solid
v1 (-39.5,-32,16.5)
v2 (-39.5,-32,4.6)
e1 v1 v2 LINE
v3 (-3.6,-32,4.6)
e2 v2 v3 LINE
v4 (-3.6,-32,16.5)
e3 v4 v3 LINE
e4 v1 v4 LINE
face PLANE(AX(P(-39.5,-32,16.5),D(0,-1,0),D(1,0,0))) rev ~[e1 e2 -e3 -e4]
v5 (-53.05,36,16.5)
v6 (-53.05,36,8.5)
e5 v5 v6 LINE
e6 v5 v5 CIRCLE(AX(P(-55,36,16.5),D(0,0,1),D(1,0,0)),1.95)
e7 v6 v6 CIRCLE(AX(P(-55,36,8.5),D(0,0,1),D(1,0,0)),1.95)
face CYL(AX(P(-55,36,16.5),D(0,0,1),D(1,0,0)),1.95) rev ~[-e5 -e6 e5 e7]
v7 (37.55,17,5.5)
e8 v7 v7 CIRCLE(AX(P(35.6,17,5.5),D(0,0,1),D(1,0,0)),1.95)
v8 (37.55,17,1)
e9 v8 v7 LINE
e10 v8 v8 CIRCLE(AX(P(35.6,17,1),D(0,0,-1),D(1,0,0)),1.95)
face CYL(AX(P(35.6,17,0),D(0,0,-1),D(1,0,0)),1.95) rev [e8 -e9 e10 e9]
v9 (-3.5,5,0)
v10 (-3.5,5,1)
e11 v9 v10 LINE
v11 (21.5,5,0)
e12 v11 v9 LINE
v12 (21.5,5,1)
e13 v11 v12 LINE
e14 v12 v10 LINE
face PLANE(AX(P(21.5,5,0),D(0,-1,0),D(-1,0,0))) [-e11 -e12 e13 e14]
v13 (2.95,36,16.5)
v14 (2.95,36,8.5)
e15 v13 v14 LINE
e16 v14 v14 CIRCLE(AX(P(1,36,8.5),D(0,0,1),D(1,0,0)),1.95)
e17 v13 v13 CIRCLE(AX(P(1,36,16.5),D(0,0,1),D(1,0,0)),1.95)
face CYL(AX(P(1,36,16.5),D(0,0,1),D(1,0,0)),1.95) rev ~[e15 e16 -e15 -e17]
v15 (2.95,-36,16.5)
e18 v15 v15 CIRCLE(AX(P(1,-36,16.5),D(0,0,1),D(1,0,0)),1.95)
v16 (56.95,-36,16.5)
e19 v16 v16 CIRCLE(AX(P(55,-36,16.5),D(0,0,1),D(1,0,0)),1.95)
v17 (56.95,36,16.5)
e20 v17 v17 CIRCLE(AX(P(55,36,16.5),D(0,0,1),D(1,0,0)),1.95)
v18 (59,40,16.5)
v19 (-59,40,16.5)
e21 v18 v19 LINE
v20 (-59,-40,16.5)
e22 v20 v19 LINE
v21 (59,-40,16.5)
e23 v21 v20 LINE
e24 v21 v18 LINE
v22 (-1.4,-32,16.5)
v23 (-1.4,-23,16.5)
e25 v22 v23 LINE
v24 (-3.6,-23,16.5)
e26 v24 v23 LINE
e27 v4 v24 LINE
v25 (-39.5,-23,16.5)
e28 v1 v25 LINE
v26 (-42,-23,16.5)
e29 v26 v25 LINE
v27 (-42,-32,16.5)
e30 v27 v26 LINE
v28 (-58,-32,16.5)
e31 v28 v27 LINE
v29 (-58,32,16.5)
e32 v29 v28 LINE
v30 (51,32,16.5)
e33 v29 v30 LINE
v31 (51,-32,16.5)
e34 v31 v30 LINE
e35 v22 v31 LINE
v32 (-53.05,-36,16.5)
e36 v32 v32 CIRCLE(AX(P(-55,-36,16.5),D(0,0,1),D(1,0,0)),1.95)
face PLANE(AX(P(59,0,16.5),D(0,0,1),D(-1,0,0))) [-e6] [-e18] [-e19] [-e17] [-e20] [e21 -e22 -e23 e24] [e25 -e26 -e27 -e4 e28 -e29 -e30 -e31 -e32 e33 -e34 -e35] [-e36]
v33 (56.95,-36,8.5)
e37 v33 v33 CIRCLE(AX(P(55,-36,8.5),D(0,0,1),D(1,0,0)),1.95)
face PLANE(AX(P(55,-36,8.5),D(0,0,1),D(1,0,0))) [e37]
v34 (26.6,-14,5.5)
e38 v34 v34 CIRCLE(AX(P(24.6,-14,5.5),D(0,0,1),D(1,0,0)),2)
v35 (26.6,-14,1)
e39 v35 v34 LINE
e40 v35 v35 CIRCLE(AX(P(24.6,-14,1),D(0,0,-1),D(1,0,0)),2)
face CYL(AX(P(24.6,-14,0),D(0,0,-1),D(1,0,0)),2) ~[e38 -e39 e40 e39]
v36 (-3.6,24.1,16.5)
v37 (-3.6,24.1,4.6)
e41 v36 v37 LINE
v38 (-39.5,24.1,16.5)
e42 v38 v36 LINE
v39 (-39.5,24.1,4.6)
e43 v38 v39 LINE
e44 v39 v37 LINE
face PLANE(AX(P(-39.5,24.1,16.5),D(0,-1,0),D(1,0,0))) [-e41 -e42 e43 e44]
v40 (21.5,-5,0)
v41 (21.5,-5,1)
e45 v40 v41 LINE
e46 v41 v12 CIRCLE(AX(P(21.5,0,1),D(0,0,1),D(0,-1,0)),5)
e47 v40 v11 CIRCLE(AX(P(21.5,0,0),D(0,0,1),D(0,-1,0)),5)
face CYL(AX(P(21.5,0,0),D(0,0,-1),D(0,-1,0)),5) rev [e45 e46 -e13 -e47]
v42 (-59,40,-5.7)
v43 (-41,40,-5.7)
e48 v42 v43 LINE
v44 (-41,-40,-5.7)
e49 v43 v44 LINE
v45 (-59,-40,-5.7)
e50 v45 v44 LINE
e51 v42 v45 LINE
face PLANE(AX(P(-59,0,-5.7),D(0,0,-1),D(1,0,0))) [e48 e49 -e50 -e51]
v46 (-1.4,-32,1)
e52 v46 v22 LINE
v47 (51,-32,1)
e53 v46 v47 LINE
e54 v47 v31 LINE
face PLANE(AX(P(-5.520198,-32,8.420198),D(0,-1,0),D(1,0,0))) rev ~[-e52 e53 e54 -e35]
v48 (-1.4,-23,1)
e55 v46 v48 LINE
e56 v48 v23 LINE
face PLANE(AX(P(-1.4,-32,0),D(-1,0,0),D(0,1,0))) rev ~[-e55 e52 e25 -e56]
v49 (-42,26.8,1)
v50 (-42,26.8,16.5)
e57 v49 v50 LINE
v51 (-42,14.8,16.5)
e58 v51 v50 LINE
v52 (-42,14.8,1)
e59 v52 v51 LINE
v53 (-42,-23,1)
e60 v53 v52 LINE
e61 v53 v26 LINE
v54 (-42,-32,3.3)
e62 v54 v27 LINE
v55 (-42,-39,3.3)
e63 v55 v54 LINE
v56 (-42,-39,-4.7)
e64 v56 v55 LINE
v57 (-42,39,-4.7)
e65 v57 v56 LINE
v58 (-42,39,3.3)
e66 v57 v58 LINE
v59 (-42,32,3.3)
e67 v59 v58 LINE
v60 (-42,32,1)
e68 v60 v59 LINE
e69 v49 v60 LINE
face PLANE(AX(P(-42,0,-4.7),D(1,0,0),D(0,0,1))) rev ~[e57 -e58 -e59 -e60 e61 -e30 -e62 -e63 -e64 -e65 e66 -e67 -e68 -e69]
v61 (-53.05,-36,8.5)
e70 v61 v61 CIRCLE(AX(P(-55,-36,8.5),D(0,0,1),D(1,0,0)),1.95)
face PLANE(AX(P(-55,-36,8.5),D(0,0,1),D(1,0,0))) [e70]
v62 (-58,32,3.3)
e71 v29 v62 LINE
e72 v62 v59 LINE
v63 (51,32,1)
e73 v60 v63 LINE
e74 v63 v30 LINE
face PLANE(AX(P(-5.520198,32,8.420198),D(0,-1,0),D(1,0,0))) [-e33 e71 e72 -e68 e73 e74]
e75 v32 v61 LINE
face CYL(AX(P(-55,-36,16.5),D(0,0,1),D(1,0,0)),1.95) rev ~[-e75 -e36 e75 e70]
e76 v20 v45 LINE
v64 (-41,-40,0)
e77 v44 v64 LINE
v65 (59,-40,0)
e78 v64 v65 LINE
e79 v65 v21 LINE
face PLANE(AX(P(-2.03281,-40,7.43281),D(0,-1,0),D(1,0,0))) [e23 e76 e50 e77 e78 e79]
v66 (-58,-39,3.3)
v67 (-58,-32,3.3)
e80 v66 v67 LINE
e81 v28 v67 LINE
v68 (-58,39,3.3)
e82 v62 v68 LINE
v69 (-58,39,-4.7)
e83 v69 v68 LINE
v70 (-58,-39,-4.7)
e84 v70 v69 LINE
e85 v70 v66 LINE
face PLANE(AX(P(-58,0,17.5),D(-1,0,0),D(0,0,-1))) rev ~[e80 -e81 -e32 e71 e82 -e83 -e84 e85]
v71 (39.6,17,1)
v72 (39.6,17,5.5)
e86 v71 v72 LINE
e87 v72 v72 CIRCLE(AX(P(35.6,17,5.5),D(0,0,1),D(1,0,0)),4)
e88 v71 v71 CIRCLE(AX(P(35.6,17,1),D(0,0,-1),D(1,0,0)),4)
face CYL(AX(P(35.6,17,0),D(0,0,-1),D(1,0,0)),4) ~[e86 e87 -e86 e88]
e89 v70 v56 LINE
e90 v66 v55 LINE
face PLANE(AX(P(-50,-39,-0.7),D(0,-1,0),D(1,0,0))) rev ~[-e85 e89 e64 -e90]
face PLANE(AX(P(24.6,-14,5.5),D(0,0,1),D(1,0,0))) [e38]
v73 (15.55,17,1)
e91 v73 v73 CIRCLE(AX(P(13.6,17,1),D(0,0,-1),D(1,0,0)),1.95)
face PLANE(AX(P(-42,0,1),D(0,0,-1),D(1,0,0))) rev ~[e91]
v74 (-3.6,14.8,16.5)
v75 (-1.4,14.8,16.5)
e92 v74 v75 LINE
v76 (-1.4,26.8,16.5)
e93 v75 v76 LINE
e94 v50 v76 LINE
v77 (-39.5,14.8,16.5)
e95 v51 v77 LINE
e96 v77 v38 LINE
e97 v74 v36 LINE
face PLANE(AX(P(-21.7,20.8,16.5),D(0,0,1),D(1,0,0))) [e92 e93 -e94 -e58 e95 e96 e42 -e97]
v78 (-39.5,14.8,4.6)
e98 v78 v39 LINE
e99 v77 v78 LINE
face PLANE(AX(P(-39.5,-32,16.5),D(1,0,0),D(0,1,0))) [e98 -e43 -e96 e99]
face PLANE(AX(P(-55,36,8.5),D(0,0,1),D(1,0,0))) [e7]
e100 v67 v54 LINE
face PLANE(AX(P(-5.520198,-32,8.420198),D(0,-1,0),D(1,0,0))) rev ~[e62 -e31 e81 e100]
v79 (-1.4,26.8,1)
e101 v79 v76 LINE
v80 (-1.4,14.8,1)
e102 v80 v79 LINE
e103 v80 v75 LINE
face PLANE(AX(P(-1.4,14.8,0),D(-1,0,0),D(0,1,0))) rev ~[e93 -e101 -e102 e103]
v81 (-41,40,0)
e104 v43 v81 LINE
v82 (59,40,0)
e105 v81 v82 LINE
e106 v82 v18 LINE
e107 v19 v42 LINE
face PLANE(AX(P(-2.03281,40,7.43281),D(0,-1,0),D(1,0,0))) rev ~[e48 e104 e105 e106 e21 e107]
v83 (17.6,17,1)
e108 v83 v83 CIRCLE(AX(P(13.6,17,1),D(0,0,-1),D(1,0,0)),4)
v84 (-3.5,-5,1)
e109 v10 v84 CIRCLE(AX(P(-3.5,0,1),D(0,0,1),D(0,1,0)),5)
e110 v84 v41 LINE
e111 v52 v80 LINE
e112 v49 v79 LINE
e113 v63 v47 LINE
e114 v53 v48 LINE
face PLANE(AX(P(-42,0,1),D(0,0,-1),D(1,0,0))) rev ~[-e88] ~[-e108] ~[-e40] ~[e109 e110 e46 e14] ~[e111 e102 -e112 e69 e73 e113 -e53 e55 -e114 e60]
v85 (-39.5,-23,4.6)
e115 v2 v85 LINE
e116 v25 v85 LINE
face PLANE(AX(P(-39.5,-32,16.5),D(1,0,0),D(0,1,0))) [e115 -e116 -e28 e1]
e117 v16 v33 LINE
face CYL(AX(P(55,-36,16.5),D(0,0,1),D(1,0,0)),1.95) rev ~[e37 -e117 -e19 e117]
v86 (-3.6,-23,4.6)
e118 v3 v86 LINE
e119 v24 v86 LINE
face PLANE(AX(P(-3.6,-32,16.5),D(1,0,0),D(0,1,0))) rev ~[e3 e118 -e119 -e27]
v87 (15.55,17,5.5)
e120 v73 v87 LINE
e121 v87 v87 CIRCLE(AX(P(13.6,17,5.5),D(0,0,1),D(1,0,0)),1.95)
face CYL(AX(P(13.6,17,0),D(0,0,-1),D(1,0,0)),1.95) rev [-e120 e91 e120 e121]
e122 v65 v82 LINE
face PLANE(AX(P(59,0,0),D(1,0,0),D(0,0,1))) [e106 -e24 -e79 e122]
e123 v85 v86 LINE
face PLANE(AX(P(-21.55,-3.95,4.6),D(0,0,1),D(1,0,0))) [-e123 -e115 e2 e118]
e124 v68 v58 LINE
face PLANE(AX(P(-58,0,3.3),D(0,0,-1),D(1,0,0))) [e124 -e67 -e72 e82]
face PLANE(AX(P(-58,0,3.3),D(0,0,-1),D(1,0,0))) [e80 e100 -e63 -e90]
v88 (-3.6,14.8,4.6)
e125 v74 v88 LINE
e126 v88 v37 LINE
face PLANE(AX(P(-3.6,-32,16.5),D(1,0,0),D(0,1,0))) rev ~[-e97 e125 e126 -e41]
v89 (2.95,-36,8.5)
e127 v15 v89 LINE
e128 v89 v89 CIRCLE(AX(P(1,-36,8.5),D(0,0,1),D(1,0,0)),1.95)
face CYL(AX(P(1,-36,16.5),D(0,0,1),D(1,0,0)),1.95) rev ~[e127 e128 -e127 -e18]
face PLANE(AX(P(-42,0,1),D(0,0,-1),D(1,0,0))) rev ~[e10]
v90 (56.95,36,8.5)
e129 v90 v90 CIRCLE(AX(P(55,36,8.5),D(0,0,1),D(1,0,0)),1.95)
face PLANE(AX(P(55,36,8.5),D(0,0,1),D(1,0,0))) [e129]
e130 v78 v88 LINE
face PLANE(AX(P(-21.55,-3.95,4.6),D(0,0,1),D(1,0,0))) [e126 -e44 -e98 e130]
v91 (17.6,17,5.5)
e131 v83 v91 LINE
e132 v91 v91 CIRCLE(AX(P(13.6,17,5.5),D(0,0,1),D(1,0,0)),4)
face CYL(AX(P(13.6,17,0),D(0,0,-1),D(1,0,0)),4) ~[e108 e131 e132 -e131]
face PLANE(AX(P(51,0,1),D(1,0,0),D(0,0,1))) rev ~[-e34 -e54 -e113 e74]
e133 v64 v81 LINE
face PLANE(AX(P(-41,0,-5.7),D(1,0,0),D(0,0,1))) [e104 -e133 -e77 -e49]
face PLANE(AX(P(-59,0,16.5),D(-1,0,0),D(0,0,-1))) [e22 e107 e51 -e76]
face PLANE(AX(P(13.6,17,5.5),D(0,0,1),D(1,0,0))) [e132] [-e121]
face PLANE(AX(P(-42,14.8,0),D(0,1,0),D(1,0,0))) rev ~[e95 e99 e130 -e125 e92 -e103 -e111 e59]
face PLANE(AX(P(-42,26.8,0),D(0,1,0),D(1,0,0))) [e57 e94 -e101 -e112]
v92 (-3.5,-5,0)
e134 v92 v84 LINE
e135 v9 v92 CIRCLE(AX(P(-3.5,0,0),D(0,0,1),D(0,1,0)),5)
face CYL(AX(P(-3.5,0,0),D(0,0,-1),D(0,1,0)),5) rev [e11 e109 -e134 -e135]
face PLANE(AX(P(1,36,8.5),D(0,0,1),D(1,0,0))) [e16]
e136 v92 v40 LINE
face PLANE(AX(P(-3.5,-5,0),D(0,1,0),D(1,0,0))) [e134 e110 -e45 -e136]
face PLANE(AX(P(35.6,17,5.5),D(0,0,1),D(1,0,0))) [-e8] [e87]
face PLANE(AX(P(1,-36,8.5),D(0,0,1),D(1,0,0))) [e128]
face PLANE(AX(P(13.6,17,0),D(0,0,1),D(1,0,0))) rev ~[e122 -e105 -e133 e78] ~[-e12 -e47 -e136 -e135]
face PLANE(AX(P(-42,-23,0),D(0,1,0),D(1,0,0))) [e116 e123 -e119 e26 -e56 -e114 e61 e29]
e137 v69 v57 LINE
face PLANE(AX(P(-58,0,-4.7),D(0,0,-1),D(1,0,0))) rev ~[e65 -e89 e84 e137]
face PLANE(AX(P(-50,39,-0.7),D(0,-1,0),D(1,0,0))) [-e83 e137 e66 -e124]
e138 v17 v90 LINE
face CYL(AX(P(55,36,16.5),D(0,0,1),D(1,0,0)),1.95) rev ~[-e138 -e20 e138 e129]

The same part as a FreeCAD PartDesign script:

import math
import FreeCAD as App
import Part
import Sketcher

V = App.Vector
Q = App.Units.Quantity


def add_polygon(sketch, points):
    """Adds a closed chain of lines whose ends are joined by coincident constraints."""
    first, n = sketch.GeometryCount, len(points)
    for a, b in zip(points, points[1:] + points[:1]):
        sketch.addGeometry(Part.LineSegment(App.Vector(*a, 0), App.Vector(*b, 0)), False)
    for i in range(n):
        sketch.addConstraint(Sketcher.Constraint("Coincident", first + i, 2, first + (i + 1) % n, 1))

doc = App.newDocument("Part")
body = doc.addObject("PartDesign::Body", "Body")

# Sketch on XZ plane
sketch1 = body.newObject("Sketcher::SketchObject", "Sketch")
sketch1.AttachmentSupport = (doc.getObject("XZ_Plane"), [""])
sketch1.MapMode = "FlatFace"
add_polygon(sketch1, [(-59, 16), (-59, -6), (-41, -6), (-41, 0), (59, 0), (59, 16)])  # lines 0-5
sketch1.addConstraint(Sketcher.Constraint("Vertical", 0))
sketch1.addConstraint(Sketcher.Constraint("Horizontal", 1))
sketch1.addConstraint(Sketcher.Constraint("Vertical", 2))
sketch1.addConstraint(Sketcher.Constraint("Horizontal", 3))
sketch1.addConstraint(Sketcher.Constraint("Vertical", 4))
sketch1.addConstraint(Sketcher.Constraint("Horizontal", 5))
sketch1.addConstraint(Sketcher.Constraint("PointOnObject", 2, 2, -1))
sketch1.addConstraint(Sketcher.Constraint("DistanceX", 1, 1, 1, 2, Q("18 mm")))
sketch1.addConstraint(Sketcher.Constraint("DistanceX", 3, 1, 3, 2, Q("100 mm")))
sketch1.addConstraint(Sketcher.Constraint("DistanceY", 0, 2, 0, 1, Q("22.2 mm")))
sketch1.addConstraint(Sketcher.Constraint("DistanceY", 2, 1, 2, 2, Q("5.7 mm")))
sketch1.addConstraint(Sketcher.Constraint("DistanceX", 0, 2, -1, 1, Q("59 mm")))
pad1 = body.newObject("PartDesign::Pad", "Pad")
pad1.Profile = sketch1
pad1.Length = 80
pad1.Midplane = True

# Sketch on XZ plane
sketch2 = body.newObject("Sketcher::SketchObject", "Sketch001")
sketch2.AttachmentSupport = (doc.getObject("XZ_Plane"), [""])
sketch2.MapMode = "FlatFace"
add_polygon(sketch2, [(-42, 1), (51, 1), (51, 18), (-58, 18), (-58, -5), (-42, -5)])  # lines 0-5
sketch2.addConstraint(Sketcher.Constraint("Horizontal", 0))
sketch2.addConstraint(Sketcher.Constraint("Vertical", 1))
sketch2.addConstraint(Sketcher.Constraint("Horizontal", 2))
sketch2.addConstraint(Sketcher.Constraint("Vertical", 3))
sketch2.addConstraint(Sketcher.Constraint("Horizontal", 4))
sketch2.addConstraint(Sketcher.Constraint("Vertical", 5))
sketch2.addConstraint(Sketcher.Constraint("DistanceX", 0, 1, 0, 2, Q("93 mm")))
sketch2.addConstraint(Sketcher.Constraint("DistanceX", 2, 2, 2, 1, Q("109 mm")))
sketch2.addConstraint(Sketcher.Constraint("DistanceY", 1, 1, 1, 2, Q("16.5 mm")))
sketch2.addConstraint(Sketcher.Constraint("DistanceY", 3, 2, 3, 1, Q("22.2 mm")))
sketch2.addConstraint(Sketcher.Constraint("DistanceX", -1, 1, 0, 2, Q("51 mm")))
sketch2.addConstraint(Sketcher.Constraint("DistanceY", -1, 1, 0, 2, Q("1 mm")))
pocket1 = body.newObject("PartDesign::Pocket", "Pocket")
pocket1.Profile = sketch2
pocket1.Length = 64
pocket1.Midplane = True

# Sketch on XY plane
sketch3 = body.newObject("Sketcher::SketchObject", "Sketch002")
sketch3.AttachmentSupport = (doc.getObject("XY_Plane"), [""])
sketch3.MapMode = "FlatFace"
sketch3.addGeometry(Part.ArcOfCircle(Part.Circle(V(-4, 0, 0), V(0, 0, 1), 5), math.radians(90), math.radians(270)), False)
sketch3.addGeometry(Part.LineSegment(V(-4, -5, 0), V(22, -5, 0)), False)
sketch3.addGeometry(Part.ArcOfCircle(Part.Circle(V(22, 0, 0), V(0, 0, 1), 5), math.radians(-90), math.radians(90)), False)
sketch3.addGeometry(Part.LineSegment(V(22, 5, 0), V(-4, 5, 0)), False)
sketch3.addConstraint(Sketcher.Constraint("Tangent", 0, 2, 1, 1))
sketch3.addConstraint(Sketcher.Constraint("Tangent", 1, 2, 2, 1))
sketch3.addConstraint(Sketcher.Constraint("Tangent", 2, 2, 3, 1))
sketch3.addConstraint(Sketcher.Constraint("Tangent", 3, 2, 0, 1))
sketch3.addConstraint(Sketcher.Constraint("Horizontal", 1))
sketch3.addConstraint(Sketcher.Constraint("Horizontal", 3))
sketch3.addConstraint(Sketcher.Constraint("PointOnObject", 0, 3, -1))
sketch3.addConstraint(Sketcher.Constraint("Radius", 0, Q("5 mm")))
sketch3.addConstraint(Sketcher.Constraint("DistanceX", 1, 1, 1, 2, Q("25 mm")))
sketch3.addConstraint(Sketcher.Constraint("DistanceX", 0, 3, -1, 1, Q("3.5 mm")))
pocket2 = body.newObject("PartDesign::Pocket", "Pocket001")
pocket2.Profile = sketch3
pocket2.Length = 1
pocket2.Reversed = True

# Sketch on XY plane
sketch4 = body.newObject("Sketcher::SketchObject", "Sketch003")
sketch4.AttachmentSupport = (doc.getObject("XY_Plane"), [""])
sketch4.MapMode = "FlatFace"
sketch4.addGeometry(Part.Circle(V(13.6, 17, 0), V(0, 0, 1), 4), False)
sketch4.addGeometry(Part.Circle(V(13.6, 17, 0), V(0, 0, 1), 1.9), False)
sketch4.addGeometry(Part.Circle(V(35.6, 17, 0), V(0, 0, 1), 4), False)
sketch4.addGeometry(Part.Circle(V(35.6, 17, 0), V(0, 0, 1), 1.9), False)
sketch4.addGeometry(Part.Circle(V(24.6, -14, 0), V(0, 0, 1), 2), False)
sketch4.addConstraint(Sketcher.Constraint("Coincident", 1, 3, 0, 3))
sketch4.addConstraint(Sketcher.Constraint("Coincident", 3, 3, 2, 3))
sketch4.addConstraint(Sketcher.Constraint("Equal", 0, 2))
sketch4.addConstraint(Sketcher.Constraint("Equal", 1, 3))
sketch4.addConstraint(Sketcher.Constraint("Horizontal", 1, 3, 2, 3))
sketch4.addConstraint(Sketcher.Constraint("Diameter", 0, Q("8 mm")))
sketch4.addConstraint(Sketcher.Constraint("Diameter", 4, Q("4 mm")))
sketch4.addConstraint(Sketcher.Constraint("Diameter", 1, Q("3.9 mm")))
sketch4.addConstraint(Sketcher.Constraint("DistanceY", -1, 1, 0, 3, Q("17 mm")))
sketch4.addConstraint(Sketcher.Constraint("DistanceY", 4, 3, -1, 1, Q("14 mm")))
sketch4.addConstraint(Sketcher.Constraint("DistanceX", 0, 3, 2, 3, Q("22 mm")))
sketch4.addConstraint(Sketcher.Constraint("DistanceX", 4, 3, 2, 3, Q("11 mm")))
sketch4.addConstraint(Sketcher.Constraint("DistanceX", -1, 1, 0, 3, Q("13.6 mm")))
pad2 = body.newObject("PartDesign::Pad", "Pad001")
pad2.Profile = sketch4
pad2.Length = 5.5

# Sketch on XZ plane
sketch5 = body.newObject("Sketcher::SketchObject", "Sketch004")
sketch5.AttachmentSupport = (doc.getObject("XZ_Plane"), [""])
sketch5.MapMode = "FlatFace"
add_polygon(sketch5, [(-58, 3), (-58, -5), (-42, -5), (-42, 3)])  # lines 0-3
sketch5.addConstraint(Sketcher.Constraint("Vertical", 0))
sketch5.addConstraint(Sketcher.Constraint("Horizontal", 1))
sketch5.addConstraint(Sketcher.Constraint("Vertical", 2))
sketch5.addConstraint(Sketcher.Constraint("Horizontal", 3))
sketch5.addConstraint(Sketcher.Constraint("DistanceX", 1, 1, 1, 2, Q("16 mm")))
sketch5.addConstraint(Sketcher.Constraint("DistanceY", 0, 2, 0, 1, Q("8 mm")))
sketch5.addConstraint(Sketcher.Constraint("DistanceX", 0, 2, -1, 1, Q("58 mm")))
sketch5.addConstraint(Sketcher.Constraint("DistanceY", 0, 2, -1, 1, Q("4.7 mm")))
pocket3 = body.newObject("PartDesign::Pocket", "Pocket002")
pocket3.Profile = sketch5
pocket3.Length = 78
pocket3.Midplane = True

# Sketch on XY plane
sketch6 = body.newObject("Sketcher::SketchObject", "Sketch005")
sketch6.AttachmentSupport = (doc.getObject("XY_Plane"), [""])
sketch6.MapMode = "FlatFace"
sketch6.AttachmentOffset = App.Placement(V(0, 0, 16.5), App.Rotation())
sketch6.addGeometry(Part.Circle(V(-55, 36, 0), V(0, 0, 1), 1.9), False)
sketch6.addGeometry(Part.Circle(V(1, 36, 0), V(0, 0, 1), 1.9), False)
sketch6.addGeometry(Part.Circle(V(55, 36, 0), V(0, 0, 1), 1.9), False)
sketch6.addGeometry(Part.Circle(V(55, -36, 0), V(0, 0, 1), 1.9), False)
sketch6.addGeometry(Part.Circle(V(1, -36, 0), V(0, 0, 1), 1.9), False)
sketch6.addGeometry(Part.Circle(V(-55, -36, 0), V(0, 0, 1), 1.9), False)
sketch6.addConstraint(Sketcher.Constraint("Equal", 0, 1))
sketch6.addConstraint(Sketcher.Constraint("Equal", 1, 2))
sketch6.addConstraint(Sketcher.Constraint("Equal", 2, 3))
sketch6.addConstraint(Sketcher.Constraint("Equal", 3, 4))
sketch6.addConstraint(Sketcher.Constraint("Equal", 4, 5))
sketch6.addConstraint(Sketcher.Constraint("Symmetric", 0, 3, 3, 3, -1, 1))
sketch6.addConstraint(Sketcher.Constraint("Symmetric", 2, 3, 5, 3, -1, 1))
sketch6.addConstraint(Sketcher.Constraint("Symmetric", 0, 3, 2, 3, -2))
sketch6.addConstraint(Sketcher.Constraint("Symmetric", 1, 3, 4, 3, -1))
sketch6.addConstraint(Sketcher.Constraint("Horizontal", 0, 3, 1, 3))
sketch6.addConstraint(Sketcher.Constraint("Diameter", 0, Q("3.9 mm")))
sketch6.addConstraint(Sketcher.Constraint("DistanceX", 0, 3, -1, 1, Q("55 mm")))
sketch6.addConstraint(Sketcher.Constraint("DistanceY", -1, 1, 0, 3, Q("36 mm")))
sketch6.addConstraint(Sketcher.Constraint("DistanceX", -1, 1, 1, 3, Q("1 mm")))
pocket4 = body.newObject("PartDesign::Pocket", "Pocket003")
pocket4.Profile = sketch6
pocket4.Length = 8

# Sketch on XY plane
sketch7 = body.newObject("Sketcher::SketchObject", "Sketch006")
sketch7.AttachmentSupport = (doc.getObject("XY_Plane"), [""])
sketch7.MapMode = "FlatFace"
add_polygon(sketch7, [(-42, 27), (-42, 15), (-1, 15), (-1, 27)])  # lines 0-3
add_polygon(sketch7, [(-42, -23), (-42, -32), (-1, -32), (-1, -23)])  # lines 4-7
sketch7.addConstraint(Sketcher.Constraint("Vertical", 0))
sketch7.addConstraint(Sketcher.Constraint("Horizontal", 1))
sketch7.addConstraint(Sketcher.Constraint("Vertical", 2))
sketch7.addConstraint(Sketcher.Constraint("Horizontal", 3))
sketch7.addConstraint(Sketcher.Constraint("Vertical", 4))
sketch7.addConstraint(Sketcher.Constraint("Horizontal", 5))
sketch7.addConstraint(Sketcher.Constraint("Vertical", 6))
sketch7.addConstraint(Sketcher.Constraint("Horizontal", 7))
sketch7.addConstraint(Sketcher.Constraint("Vertical", 3, 2, 4, 2))
sketch7.addConstraint(Sketcher.Constraint("Vertical", 2, 2, 5, 2))
sketch7.addConstraint(Sketcher.Constraint("DistanceY", 0, 2, 0, 1, Q("12 mm")))
sketch7.addConstraint(Sketcher.Constraint("DistanceY", 4, 2, 4, 1, Q("9 mm")))
sketch7.addConstraint(Sketcher.Constraint("DistanceX", 1, 1, 1, 2, Q("40.6 mm")))
sketch7.addConstraint(Sketcher.Constraint("DistanceX", 0, 2, -1, 1, Q("42 mm")))
sketch7.addConstraint(Sketcher.Constraint("DistanceY", 4, 2, -1, 1, Q("32 mm")))
sketch7.addConstraint(Sketcher.Constraint("DistanceY", -1, 1, 0, 2, Q("14.8 mm")))
pad3 = body.newObject("PartDesign::Pad", "Pad002")
pad3.Profile = sketch7
pad3.Length = 16.5

# Sketch on XY plane
sketch8 = body.newObject("Sketcher::SketchObject", "Sketch007")
sketch8.AttachmentSupport = (doc.getObject("XY_Plane"), [""])
sketch8.MapMode = "FlatFace"
sketch8.AttachmentOffset = App.Placement(V(0, 0, 16.5), App.Rotation())
add_polygon(sketch8, [(-40, 24), (-40, -32), (-4, -32), (-4, 24)])  # lines 0-3
sketch8.addConstraint(Sketcher.Constraint("Vertical", 0))
sketch8.addConstraint(Sketcher.Constraint("Horizontal", 1))
sketch8.addConstraint(Sketcher.Constraint("Vertical", 2))
sketch8.addConstraint(Sketcher.Constraint("Horizontal", 3))
sketch8.addConstraint(Sketcher.Constraint("DistanceX", 1, 1, 1, 2, Q("35.9 mm")))
sketch8.addConstraint(Sketcher.Constraint("DistanceY", 0, 2, 0, 1, Q("56.1 mm")))
sketch8.addConstraint(Sketcher.Constraint("DistanceY", 0, 2, -1, 1, Q("32 mm")))
sketch8.addConstraint(Sketcher.Constraint("DistanceX", 0, 2, -1, 1, Q("39.5 mm")))
pocket5 = body.newObject("PartDesign::Pocket", "Pocket004")
pocket5.Profile = sketch8
pocket5.Length = 11.9

doc.recompute()
